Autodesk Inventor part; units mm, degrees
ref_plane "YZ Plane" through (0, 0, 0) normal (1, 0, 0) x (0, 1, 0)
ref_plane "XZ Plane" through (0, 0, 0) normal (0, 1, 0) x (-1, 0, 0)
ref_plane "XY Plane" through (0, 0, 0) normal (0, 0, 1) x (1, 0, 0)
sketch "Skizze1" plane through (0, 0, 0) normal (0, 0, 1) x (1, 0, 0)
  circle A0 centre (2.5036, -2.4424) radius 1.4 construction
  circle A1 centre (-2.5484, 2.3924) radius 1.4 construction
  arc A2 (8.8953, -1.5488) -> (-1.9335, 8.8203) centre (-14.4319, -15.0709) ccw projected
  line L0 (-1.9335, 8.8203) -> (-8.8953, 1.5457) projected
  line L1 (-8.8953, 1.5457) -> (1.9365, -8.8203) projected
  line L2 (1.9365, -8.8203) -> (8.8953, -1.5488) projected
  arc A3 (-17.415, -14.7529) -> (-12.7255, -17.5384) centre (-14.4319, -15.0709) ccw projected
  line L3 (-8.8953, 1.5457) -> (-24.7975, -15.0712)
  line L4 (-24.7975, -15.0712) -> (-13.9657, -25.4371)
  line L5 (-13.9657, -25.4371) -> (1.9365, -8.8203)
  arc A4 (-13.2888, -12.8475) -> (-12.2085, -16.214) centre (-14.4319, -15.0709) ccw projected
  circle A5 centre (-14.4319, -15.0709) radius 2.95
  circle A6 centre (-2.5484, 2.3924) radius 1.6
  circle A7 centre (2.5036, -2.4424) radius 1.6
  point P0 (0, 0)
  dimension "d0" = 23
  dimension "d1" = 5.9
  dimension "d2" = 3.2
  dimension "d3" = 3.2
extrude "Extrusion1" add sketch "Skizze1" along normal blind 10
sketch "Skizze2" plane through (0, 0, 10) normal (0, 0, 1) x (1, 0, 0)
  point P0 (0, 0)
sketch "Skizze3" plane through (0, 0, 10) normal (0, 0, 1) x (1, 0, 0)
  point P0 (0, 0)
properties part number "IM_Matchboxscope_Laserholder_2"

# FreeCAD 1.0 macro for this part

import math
import FreeCAD as App
import Part
import Sketcher

V = App.Vector
Q = App.Units.Quantity

doc = App.newDocument("Part")
body = doc.addObject("PartDesign::Body", "Body")

# Sketch on XY plane
sketch1 = doc.addObject("Sketcher::SketchObject", "Sketch")
body.addObject(sketch1)
sketch1.AttachmentSupport = (doc.XY_Plane, [""])
sketch1.MapMode = "FlatFace"
sketch1.addGeometry([
    Part.LineSegment(V(1.9365, -8.8203, 0), V(8.8953, -1.5488, 0)),  # 0
    Part.ArcOfCircle(Part.Circle(V(-14.430778, -15.070018, 0), V(0, 0, 1), 26.961626), math.radians(30.099198), math.radians(62.385458)),  # 1
    Part.LineSegment(V(-1.9335, 8.8203, 0), V(-8.8953, 1.5457, 0)),  # 2
    Part.LineSegment(V(-8.8953, 1.5457, 0), V(-24.7975, -15.0712, 0)),  # 3
    Part.LineSegment(V(-24.7975, -15.0712, 0), V(-13.9657, -25.4371, 0)),  # 4
    Part.LineSegment(V(-13.9657, -25.4371, 0), V(1.9365, -8.8203, 0)),  # 5
    Part.Circle(V(2.5036, -2.4424, 0), V(0, 0, 1), 1.6),  # 6
    Part.Circle(V(-2.5484, 2.3924, 0), V(0, 0, 1), 1.6),  # 7
    Part.Circle(V(-14.4319, -15.0709, 0), V(0, 0, 1), 2.95),  # 8
], False)
sketch1.addConstraint([
    Sketcher.Constraint("Coincident", 0, 2, 1, 1),
    Sketcher.Constraint("Coincident", 1, 2, 2, 1),
    Sketcher.Constraint("Coincident", 2, 2, 3, 1),
    Sketcher.Constraint("Coincident", 3, 2, 4, 1),
    Sketcher.Constraint("Coincident", 4, 2, 5, 1),
    Sketcher.Constraint("Coincident", 5, 2, 0, 1),
    Sketcher.Constraint("Equal", 6, 7),
    Sketcher.Constraint("Parallel", 0, 2),
    Sketcher.Constraint("Parallel", 2, 3),
    Sketcher.Constraint("Perpendicular", 3, 4),
    Sketcher.Constraint("Perpendicular", 4, 5),
    Sketcher.Constraint("Equal", 3, 5),
    Sketcher.Constraint("Diameter", 6, 3.2),
    Sketcher.Constraint("Diameter", 8, 5.9),
    Sketcher.Constraint("Distance", 3, 23.0),
    Sketcher.Constraint("Angle", 0, Q("46.2588 deg")),
    Sketcher.Constraint("Radius", 1, 26.9616),
    Sketcher.Constraint("DistanceY", 1, 3, -1, 1, 15.07),
    Sketcher.Constraint("Distance", 2, 10.069),
    Sketcher.Constraint("DistanceX", 8, 3, -1, 1, 14.432),
    Sketcher.Constraint("DistanceY", 8, 3, -1, 1, 15.071),
    Sketcher.Constraint("DistanceY", 4, 2, -1, 1, 25.437),
    Sketcher.Constraint("DistanceX", 7, 3, 6, 3, 5.052),
    Sketcher.Constraint("DistanceX", 1, 3, 0, 2, 23.326),
    Sketcher.Constraint("DistanceX", 7, 3, 1, 2, 0.615),
    Sketcher.Constraint("DistanceY", 7, 3, 1, 2, 6.428),
    Sketcher.Constraint("DistanceY", 6, 3, 2, 2, 3.988),
    Sketcher.Constraint("DistanceX", 1, 3, -1, 1, 14.4308),
])
pad1 = doc.addObject("PartDesign::Pad", "Pad")
body.addObject(pad1)
pad1.Profile = sketch1
pad1.Length = 10

doc.recompute()
